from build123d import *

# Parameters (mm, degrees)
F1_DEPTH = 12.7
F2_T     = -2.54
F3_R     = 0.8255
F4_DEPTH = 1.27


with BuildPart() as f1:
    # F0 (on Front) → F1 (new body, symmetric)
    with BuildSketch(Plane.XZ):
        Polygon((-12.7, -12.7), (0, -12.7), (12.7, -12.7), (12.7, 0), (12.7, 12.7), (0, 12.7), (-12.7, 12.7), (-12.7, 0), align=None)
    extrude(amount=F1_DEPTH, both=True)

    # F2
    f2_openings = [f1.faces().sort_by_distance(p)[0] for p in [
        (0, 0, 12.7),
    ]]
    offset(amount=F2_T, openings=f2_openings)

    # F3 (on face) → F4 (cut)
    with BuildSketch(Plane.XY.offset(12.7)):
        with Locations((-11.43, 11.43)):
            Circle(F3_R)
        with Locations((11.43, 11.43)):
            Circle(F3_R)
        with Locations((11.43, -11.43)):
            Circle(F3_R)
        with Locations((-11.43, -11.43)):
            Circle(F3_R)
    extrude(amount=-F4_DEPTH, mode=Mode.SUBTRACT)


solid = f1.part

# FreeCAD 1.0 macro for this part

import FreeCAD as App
import Part
import Sketcher

V = App.Vector
Q = App.Units.Quantity


def faces_at(feature, points):
    """Names of the faces that lie closest to the given points."""
    faces = feature.Shape.Faces
    near = lambda p: min(range(len(faces)), key=lambda i: faces[i].distToShape(Part.Vertex(*p))[0])
    return sorted({f"Face{near(p) + 1}" for p in points})


def add_polygon(sketch, points):
    """Adds a closed chain of lines whose ends are joined by coincident constraints."""
    first, n = sketch.GeometryCount, len(points)
    for a, b in zip(points, points[1:] + points[:1]):
        sketch.addGeometry(Part.LineSegment(App.Vector(*a, 0), App.Vector(*b, 0)), False)
    for i in range(n):
        sketch.addConstraint(Sketcher.Constraint("Coincident", first + i, 2, first + (i + 1) % n, 1))

doc = App.newDocument("Part")
body = doc.addObject("PartDesign::Body", "Body")

# Sketch on XZ plane
sketch1 = body.newObject("Sketcher::SketchObject", "Sketch")
sketch1.AttachmentSupport = (doc.getObject("XZ_Plane"), [""])
sketch1.MapMode = "FlatFace"
add_polygon(sketch1, [(-12.7, -12.7), (12.7, -12.7), (12.7, 12.7), (-12.7, 12.7)])  # lines 0-3
sketch1.addConstraint([
    Sketcher.Constraint("Horizontal", 0),
    Sketcher.Constraint("Vertical", 1),
    Sketcher.Constraint("Horizontal", 2),
    Sketcher.Constraint("Vertical", 3),
    Sketcher.Constraint("Symmetric", 0, 2, 2, 2, -1, 1),
    Sketcher.Constraint("Equal", 2, 1),
    Sketcher.Constraint("DistanceX", 0, 1, 0, 2, Q("1 in")),
])
pad1 = body.newObject("PartDesign::Pad", "Pad")
pad1.Profile = sketch1
pad1.Length = Q("1 in")
pad1.Midplane = True
doc.recompute()

thickness = body.newObject("PartDesign::Thickness", "Thickness")
thickness.Base = (pad1, faces_at(pad1, [(0, 0, 12.7)]))
thickness.Value = Q("0.1 in")
thickness.Reversed = True
thickness.Join = "Arc"

# Sketch on XY plane
sketch2 = body.newObject("Sketcher::SketchObject", "Sketch001")
sketch2.AttachmentSupport = (doc.getObject("XY_Plane"), [""])
sketch2.MapMode = "FlatFace"
sketch2.AttachmentOffset = App.Placement(V(0, 0, 0.5 * 25.4), App.Rotation())
sketch2.addGeometry([
    Part.Circle(V(-11.43, 11.43, 0), V(0, 0, 1), 0.8255),
    Part.Circle(V(11.43, 11.43, 0), V(0, 0, 1), 0.8255),
    Part.Circle(V(11.43, -11.43, 0), V(0, 0, 1), 0.8255),
    Part.Circle(V(-11.43, -11.43, 0), V(0, 0, 1), 0.8255),
], False)
sketch2.addConstraint([
    Sketcher.Constraint("Equal", 0, 1),
    Sketcher.Constraint("Equal", 1, 2),
    Sketcher.Constraint("Equal", 2, 3),
    Sketcher.Constraint("Symmetric", 0, 3, 2, 3, -1, 1),
    Sketcher.Constraint("Symmetric", 1, 3, 3, 3, -1, 1),
    Sketcher.Constraint("Symmetric", 0, 3, 1, 3, -2),
    Sketcher.Constraint("Diameter", 0, Q("0.065 in")),
    Sketcher.Constraint("DistanceX", 0, 3, 1, 3, Q("0.9 in")),
    Sketcher.Constraint("DistanceY", 2, 3, 1, 3, Q("0.9 in")),
])
pocket1 = body.newObject("PartDesign::Pocket", "Pocket")
pocket1.Profile = sketch2
pocket1.Length = Q("0.05 in")

doc.recompute()
